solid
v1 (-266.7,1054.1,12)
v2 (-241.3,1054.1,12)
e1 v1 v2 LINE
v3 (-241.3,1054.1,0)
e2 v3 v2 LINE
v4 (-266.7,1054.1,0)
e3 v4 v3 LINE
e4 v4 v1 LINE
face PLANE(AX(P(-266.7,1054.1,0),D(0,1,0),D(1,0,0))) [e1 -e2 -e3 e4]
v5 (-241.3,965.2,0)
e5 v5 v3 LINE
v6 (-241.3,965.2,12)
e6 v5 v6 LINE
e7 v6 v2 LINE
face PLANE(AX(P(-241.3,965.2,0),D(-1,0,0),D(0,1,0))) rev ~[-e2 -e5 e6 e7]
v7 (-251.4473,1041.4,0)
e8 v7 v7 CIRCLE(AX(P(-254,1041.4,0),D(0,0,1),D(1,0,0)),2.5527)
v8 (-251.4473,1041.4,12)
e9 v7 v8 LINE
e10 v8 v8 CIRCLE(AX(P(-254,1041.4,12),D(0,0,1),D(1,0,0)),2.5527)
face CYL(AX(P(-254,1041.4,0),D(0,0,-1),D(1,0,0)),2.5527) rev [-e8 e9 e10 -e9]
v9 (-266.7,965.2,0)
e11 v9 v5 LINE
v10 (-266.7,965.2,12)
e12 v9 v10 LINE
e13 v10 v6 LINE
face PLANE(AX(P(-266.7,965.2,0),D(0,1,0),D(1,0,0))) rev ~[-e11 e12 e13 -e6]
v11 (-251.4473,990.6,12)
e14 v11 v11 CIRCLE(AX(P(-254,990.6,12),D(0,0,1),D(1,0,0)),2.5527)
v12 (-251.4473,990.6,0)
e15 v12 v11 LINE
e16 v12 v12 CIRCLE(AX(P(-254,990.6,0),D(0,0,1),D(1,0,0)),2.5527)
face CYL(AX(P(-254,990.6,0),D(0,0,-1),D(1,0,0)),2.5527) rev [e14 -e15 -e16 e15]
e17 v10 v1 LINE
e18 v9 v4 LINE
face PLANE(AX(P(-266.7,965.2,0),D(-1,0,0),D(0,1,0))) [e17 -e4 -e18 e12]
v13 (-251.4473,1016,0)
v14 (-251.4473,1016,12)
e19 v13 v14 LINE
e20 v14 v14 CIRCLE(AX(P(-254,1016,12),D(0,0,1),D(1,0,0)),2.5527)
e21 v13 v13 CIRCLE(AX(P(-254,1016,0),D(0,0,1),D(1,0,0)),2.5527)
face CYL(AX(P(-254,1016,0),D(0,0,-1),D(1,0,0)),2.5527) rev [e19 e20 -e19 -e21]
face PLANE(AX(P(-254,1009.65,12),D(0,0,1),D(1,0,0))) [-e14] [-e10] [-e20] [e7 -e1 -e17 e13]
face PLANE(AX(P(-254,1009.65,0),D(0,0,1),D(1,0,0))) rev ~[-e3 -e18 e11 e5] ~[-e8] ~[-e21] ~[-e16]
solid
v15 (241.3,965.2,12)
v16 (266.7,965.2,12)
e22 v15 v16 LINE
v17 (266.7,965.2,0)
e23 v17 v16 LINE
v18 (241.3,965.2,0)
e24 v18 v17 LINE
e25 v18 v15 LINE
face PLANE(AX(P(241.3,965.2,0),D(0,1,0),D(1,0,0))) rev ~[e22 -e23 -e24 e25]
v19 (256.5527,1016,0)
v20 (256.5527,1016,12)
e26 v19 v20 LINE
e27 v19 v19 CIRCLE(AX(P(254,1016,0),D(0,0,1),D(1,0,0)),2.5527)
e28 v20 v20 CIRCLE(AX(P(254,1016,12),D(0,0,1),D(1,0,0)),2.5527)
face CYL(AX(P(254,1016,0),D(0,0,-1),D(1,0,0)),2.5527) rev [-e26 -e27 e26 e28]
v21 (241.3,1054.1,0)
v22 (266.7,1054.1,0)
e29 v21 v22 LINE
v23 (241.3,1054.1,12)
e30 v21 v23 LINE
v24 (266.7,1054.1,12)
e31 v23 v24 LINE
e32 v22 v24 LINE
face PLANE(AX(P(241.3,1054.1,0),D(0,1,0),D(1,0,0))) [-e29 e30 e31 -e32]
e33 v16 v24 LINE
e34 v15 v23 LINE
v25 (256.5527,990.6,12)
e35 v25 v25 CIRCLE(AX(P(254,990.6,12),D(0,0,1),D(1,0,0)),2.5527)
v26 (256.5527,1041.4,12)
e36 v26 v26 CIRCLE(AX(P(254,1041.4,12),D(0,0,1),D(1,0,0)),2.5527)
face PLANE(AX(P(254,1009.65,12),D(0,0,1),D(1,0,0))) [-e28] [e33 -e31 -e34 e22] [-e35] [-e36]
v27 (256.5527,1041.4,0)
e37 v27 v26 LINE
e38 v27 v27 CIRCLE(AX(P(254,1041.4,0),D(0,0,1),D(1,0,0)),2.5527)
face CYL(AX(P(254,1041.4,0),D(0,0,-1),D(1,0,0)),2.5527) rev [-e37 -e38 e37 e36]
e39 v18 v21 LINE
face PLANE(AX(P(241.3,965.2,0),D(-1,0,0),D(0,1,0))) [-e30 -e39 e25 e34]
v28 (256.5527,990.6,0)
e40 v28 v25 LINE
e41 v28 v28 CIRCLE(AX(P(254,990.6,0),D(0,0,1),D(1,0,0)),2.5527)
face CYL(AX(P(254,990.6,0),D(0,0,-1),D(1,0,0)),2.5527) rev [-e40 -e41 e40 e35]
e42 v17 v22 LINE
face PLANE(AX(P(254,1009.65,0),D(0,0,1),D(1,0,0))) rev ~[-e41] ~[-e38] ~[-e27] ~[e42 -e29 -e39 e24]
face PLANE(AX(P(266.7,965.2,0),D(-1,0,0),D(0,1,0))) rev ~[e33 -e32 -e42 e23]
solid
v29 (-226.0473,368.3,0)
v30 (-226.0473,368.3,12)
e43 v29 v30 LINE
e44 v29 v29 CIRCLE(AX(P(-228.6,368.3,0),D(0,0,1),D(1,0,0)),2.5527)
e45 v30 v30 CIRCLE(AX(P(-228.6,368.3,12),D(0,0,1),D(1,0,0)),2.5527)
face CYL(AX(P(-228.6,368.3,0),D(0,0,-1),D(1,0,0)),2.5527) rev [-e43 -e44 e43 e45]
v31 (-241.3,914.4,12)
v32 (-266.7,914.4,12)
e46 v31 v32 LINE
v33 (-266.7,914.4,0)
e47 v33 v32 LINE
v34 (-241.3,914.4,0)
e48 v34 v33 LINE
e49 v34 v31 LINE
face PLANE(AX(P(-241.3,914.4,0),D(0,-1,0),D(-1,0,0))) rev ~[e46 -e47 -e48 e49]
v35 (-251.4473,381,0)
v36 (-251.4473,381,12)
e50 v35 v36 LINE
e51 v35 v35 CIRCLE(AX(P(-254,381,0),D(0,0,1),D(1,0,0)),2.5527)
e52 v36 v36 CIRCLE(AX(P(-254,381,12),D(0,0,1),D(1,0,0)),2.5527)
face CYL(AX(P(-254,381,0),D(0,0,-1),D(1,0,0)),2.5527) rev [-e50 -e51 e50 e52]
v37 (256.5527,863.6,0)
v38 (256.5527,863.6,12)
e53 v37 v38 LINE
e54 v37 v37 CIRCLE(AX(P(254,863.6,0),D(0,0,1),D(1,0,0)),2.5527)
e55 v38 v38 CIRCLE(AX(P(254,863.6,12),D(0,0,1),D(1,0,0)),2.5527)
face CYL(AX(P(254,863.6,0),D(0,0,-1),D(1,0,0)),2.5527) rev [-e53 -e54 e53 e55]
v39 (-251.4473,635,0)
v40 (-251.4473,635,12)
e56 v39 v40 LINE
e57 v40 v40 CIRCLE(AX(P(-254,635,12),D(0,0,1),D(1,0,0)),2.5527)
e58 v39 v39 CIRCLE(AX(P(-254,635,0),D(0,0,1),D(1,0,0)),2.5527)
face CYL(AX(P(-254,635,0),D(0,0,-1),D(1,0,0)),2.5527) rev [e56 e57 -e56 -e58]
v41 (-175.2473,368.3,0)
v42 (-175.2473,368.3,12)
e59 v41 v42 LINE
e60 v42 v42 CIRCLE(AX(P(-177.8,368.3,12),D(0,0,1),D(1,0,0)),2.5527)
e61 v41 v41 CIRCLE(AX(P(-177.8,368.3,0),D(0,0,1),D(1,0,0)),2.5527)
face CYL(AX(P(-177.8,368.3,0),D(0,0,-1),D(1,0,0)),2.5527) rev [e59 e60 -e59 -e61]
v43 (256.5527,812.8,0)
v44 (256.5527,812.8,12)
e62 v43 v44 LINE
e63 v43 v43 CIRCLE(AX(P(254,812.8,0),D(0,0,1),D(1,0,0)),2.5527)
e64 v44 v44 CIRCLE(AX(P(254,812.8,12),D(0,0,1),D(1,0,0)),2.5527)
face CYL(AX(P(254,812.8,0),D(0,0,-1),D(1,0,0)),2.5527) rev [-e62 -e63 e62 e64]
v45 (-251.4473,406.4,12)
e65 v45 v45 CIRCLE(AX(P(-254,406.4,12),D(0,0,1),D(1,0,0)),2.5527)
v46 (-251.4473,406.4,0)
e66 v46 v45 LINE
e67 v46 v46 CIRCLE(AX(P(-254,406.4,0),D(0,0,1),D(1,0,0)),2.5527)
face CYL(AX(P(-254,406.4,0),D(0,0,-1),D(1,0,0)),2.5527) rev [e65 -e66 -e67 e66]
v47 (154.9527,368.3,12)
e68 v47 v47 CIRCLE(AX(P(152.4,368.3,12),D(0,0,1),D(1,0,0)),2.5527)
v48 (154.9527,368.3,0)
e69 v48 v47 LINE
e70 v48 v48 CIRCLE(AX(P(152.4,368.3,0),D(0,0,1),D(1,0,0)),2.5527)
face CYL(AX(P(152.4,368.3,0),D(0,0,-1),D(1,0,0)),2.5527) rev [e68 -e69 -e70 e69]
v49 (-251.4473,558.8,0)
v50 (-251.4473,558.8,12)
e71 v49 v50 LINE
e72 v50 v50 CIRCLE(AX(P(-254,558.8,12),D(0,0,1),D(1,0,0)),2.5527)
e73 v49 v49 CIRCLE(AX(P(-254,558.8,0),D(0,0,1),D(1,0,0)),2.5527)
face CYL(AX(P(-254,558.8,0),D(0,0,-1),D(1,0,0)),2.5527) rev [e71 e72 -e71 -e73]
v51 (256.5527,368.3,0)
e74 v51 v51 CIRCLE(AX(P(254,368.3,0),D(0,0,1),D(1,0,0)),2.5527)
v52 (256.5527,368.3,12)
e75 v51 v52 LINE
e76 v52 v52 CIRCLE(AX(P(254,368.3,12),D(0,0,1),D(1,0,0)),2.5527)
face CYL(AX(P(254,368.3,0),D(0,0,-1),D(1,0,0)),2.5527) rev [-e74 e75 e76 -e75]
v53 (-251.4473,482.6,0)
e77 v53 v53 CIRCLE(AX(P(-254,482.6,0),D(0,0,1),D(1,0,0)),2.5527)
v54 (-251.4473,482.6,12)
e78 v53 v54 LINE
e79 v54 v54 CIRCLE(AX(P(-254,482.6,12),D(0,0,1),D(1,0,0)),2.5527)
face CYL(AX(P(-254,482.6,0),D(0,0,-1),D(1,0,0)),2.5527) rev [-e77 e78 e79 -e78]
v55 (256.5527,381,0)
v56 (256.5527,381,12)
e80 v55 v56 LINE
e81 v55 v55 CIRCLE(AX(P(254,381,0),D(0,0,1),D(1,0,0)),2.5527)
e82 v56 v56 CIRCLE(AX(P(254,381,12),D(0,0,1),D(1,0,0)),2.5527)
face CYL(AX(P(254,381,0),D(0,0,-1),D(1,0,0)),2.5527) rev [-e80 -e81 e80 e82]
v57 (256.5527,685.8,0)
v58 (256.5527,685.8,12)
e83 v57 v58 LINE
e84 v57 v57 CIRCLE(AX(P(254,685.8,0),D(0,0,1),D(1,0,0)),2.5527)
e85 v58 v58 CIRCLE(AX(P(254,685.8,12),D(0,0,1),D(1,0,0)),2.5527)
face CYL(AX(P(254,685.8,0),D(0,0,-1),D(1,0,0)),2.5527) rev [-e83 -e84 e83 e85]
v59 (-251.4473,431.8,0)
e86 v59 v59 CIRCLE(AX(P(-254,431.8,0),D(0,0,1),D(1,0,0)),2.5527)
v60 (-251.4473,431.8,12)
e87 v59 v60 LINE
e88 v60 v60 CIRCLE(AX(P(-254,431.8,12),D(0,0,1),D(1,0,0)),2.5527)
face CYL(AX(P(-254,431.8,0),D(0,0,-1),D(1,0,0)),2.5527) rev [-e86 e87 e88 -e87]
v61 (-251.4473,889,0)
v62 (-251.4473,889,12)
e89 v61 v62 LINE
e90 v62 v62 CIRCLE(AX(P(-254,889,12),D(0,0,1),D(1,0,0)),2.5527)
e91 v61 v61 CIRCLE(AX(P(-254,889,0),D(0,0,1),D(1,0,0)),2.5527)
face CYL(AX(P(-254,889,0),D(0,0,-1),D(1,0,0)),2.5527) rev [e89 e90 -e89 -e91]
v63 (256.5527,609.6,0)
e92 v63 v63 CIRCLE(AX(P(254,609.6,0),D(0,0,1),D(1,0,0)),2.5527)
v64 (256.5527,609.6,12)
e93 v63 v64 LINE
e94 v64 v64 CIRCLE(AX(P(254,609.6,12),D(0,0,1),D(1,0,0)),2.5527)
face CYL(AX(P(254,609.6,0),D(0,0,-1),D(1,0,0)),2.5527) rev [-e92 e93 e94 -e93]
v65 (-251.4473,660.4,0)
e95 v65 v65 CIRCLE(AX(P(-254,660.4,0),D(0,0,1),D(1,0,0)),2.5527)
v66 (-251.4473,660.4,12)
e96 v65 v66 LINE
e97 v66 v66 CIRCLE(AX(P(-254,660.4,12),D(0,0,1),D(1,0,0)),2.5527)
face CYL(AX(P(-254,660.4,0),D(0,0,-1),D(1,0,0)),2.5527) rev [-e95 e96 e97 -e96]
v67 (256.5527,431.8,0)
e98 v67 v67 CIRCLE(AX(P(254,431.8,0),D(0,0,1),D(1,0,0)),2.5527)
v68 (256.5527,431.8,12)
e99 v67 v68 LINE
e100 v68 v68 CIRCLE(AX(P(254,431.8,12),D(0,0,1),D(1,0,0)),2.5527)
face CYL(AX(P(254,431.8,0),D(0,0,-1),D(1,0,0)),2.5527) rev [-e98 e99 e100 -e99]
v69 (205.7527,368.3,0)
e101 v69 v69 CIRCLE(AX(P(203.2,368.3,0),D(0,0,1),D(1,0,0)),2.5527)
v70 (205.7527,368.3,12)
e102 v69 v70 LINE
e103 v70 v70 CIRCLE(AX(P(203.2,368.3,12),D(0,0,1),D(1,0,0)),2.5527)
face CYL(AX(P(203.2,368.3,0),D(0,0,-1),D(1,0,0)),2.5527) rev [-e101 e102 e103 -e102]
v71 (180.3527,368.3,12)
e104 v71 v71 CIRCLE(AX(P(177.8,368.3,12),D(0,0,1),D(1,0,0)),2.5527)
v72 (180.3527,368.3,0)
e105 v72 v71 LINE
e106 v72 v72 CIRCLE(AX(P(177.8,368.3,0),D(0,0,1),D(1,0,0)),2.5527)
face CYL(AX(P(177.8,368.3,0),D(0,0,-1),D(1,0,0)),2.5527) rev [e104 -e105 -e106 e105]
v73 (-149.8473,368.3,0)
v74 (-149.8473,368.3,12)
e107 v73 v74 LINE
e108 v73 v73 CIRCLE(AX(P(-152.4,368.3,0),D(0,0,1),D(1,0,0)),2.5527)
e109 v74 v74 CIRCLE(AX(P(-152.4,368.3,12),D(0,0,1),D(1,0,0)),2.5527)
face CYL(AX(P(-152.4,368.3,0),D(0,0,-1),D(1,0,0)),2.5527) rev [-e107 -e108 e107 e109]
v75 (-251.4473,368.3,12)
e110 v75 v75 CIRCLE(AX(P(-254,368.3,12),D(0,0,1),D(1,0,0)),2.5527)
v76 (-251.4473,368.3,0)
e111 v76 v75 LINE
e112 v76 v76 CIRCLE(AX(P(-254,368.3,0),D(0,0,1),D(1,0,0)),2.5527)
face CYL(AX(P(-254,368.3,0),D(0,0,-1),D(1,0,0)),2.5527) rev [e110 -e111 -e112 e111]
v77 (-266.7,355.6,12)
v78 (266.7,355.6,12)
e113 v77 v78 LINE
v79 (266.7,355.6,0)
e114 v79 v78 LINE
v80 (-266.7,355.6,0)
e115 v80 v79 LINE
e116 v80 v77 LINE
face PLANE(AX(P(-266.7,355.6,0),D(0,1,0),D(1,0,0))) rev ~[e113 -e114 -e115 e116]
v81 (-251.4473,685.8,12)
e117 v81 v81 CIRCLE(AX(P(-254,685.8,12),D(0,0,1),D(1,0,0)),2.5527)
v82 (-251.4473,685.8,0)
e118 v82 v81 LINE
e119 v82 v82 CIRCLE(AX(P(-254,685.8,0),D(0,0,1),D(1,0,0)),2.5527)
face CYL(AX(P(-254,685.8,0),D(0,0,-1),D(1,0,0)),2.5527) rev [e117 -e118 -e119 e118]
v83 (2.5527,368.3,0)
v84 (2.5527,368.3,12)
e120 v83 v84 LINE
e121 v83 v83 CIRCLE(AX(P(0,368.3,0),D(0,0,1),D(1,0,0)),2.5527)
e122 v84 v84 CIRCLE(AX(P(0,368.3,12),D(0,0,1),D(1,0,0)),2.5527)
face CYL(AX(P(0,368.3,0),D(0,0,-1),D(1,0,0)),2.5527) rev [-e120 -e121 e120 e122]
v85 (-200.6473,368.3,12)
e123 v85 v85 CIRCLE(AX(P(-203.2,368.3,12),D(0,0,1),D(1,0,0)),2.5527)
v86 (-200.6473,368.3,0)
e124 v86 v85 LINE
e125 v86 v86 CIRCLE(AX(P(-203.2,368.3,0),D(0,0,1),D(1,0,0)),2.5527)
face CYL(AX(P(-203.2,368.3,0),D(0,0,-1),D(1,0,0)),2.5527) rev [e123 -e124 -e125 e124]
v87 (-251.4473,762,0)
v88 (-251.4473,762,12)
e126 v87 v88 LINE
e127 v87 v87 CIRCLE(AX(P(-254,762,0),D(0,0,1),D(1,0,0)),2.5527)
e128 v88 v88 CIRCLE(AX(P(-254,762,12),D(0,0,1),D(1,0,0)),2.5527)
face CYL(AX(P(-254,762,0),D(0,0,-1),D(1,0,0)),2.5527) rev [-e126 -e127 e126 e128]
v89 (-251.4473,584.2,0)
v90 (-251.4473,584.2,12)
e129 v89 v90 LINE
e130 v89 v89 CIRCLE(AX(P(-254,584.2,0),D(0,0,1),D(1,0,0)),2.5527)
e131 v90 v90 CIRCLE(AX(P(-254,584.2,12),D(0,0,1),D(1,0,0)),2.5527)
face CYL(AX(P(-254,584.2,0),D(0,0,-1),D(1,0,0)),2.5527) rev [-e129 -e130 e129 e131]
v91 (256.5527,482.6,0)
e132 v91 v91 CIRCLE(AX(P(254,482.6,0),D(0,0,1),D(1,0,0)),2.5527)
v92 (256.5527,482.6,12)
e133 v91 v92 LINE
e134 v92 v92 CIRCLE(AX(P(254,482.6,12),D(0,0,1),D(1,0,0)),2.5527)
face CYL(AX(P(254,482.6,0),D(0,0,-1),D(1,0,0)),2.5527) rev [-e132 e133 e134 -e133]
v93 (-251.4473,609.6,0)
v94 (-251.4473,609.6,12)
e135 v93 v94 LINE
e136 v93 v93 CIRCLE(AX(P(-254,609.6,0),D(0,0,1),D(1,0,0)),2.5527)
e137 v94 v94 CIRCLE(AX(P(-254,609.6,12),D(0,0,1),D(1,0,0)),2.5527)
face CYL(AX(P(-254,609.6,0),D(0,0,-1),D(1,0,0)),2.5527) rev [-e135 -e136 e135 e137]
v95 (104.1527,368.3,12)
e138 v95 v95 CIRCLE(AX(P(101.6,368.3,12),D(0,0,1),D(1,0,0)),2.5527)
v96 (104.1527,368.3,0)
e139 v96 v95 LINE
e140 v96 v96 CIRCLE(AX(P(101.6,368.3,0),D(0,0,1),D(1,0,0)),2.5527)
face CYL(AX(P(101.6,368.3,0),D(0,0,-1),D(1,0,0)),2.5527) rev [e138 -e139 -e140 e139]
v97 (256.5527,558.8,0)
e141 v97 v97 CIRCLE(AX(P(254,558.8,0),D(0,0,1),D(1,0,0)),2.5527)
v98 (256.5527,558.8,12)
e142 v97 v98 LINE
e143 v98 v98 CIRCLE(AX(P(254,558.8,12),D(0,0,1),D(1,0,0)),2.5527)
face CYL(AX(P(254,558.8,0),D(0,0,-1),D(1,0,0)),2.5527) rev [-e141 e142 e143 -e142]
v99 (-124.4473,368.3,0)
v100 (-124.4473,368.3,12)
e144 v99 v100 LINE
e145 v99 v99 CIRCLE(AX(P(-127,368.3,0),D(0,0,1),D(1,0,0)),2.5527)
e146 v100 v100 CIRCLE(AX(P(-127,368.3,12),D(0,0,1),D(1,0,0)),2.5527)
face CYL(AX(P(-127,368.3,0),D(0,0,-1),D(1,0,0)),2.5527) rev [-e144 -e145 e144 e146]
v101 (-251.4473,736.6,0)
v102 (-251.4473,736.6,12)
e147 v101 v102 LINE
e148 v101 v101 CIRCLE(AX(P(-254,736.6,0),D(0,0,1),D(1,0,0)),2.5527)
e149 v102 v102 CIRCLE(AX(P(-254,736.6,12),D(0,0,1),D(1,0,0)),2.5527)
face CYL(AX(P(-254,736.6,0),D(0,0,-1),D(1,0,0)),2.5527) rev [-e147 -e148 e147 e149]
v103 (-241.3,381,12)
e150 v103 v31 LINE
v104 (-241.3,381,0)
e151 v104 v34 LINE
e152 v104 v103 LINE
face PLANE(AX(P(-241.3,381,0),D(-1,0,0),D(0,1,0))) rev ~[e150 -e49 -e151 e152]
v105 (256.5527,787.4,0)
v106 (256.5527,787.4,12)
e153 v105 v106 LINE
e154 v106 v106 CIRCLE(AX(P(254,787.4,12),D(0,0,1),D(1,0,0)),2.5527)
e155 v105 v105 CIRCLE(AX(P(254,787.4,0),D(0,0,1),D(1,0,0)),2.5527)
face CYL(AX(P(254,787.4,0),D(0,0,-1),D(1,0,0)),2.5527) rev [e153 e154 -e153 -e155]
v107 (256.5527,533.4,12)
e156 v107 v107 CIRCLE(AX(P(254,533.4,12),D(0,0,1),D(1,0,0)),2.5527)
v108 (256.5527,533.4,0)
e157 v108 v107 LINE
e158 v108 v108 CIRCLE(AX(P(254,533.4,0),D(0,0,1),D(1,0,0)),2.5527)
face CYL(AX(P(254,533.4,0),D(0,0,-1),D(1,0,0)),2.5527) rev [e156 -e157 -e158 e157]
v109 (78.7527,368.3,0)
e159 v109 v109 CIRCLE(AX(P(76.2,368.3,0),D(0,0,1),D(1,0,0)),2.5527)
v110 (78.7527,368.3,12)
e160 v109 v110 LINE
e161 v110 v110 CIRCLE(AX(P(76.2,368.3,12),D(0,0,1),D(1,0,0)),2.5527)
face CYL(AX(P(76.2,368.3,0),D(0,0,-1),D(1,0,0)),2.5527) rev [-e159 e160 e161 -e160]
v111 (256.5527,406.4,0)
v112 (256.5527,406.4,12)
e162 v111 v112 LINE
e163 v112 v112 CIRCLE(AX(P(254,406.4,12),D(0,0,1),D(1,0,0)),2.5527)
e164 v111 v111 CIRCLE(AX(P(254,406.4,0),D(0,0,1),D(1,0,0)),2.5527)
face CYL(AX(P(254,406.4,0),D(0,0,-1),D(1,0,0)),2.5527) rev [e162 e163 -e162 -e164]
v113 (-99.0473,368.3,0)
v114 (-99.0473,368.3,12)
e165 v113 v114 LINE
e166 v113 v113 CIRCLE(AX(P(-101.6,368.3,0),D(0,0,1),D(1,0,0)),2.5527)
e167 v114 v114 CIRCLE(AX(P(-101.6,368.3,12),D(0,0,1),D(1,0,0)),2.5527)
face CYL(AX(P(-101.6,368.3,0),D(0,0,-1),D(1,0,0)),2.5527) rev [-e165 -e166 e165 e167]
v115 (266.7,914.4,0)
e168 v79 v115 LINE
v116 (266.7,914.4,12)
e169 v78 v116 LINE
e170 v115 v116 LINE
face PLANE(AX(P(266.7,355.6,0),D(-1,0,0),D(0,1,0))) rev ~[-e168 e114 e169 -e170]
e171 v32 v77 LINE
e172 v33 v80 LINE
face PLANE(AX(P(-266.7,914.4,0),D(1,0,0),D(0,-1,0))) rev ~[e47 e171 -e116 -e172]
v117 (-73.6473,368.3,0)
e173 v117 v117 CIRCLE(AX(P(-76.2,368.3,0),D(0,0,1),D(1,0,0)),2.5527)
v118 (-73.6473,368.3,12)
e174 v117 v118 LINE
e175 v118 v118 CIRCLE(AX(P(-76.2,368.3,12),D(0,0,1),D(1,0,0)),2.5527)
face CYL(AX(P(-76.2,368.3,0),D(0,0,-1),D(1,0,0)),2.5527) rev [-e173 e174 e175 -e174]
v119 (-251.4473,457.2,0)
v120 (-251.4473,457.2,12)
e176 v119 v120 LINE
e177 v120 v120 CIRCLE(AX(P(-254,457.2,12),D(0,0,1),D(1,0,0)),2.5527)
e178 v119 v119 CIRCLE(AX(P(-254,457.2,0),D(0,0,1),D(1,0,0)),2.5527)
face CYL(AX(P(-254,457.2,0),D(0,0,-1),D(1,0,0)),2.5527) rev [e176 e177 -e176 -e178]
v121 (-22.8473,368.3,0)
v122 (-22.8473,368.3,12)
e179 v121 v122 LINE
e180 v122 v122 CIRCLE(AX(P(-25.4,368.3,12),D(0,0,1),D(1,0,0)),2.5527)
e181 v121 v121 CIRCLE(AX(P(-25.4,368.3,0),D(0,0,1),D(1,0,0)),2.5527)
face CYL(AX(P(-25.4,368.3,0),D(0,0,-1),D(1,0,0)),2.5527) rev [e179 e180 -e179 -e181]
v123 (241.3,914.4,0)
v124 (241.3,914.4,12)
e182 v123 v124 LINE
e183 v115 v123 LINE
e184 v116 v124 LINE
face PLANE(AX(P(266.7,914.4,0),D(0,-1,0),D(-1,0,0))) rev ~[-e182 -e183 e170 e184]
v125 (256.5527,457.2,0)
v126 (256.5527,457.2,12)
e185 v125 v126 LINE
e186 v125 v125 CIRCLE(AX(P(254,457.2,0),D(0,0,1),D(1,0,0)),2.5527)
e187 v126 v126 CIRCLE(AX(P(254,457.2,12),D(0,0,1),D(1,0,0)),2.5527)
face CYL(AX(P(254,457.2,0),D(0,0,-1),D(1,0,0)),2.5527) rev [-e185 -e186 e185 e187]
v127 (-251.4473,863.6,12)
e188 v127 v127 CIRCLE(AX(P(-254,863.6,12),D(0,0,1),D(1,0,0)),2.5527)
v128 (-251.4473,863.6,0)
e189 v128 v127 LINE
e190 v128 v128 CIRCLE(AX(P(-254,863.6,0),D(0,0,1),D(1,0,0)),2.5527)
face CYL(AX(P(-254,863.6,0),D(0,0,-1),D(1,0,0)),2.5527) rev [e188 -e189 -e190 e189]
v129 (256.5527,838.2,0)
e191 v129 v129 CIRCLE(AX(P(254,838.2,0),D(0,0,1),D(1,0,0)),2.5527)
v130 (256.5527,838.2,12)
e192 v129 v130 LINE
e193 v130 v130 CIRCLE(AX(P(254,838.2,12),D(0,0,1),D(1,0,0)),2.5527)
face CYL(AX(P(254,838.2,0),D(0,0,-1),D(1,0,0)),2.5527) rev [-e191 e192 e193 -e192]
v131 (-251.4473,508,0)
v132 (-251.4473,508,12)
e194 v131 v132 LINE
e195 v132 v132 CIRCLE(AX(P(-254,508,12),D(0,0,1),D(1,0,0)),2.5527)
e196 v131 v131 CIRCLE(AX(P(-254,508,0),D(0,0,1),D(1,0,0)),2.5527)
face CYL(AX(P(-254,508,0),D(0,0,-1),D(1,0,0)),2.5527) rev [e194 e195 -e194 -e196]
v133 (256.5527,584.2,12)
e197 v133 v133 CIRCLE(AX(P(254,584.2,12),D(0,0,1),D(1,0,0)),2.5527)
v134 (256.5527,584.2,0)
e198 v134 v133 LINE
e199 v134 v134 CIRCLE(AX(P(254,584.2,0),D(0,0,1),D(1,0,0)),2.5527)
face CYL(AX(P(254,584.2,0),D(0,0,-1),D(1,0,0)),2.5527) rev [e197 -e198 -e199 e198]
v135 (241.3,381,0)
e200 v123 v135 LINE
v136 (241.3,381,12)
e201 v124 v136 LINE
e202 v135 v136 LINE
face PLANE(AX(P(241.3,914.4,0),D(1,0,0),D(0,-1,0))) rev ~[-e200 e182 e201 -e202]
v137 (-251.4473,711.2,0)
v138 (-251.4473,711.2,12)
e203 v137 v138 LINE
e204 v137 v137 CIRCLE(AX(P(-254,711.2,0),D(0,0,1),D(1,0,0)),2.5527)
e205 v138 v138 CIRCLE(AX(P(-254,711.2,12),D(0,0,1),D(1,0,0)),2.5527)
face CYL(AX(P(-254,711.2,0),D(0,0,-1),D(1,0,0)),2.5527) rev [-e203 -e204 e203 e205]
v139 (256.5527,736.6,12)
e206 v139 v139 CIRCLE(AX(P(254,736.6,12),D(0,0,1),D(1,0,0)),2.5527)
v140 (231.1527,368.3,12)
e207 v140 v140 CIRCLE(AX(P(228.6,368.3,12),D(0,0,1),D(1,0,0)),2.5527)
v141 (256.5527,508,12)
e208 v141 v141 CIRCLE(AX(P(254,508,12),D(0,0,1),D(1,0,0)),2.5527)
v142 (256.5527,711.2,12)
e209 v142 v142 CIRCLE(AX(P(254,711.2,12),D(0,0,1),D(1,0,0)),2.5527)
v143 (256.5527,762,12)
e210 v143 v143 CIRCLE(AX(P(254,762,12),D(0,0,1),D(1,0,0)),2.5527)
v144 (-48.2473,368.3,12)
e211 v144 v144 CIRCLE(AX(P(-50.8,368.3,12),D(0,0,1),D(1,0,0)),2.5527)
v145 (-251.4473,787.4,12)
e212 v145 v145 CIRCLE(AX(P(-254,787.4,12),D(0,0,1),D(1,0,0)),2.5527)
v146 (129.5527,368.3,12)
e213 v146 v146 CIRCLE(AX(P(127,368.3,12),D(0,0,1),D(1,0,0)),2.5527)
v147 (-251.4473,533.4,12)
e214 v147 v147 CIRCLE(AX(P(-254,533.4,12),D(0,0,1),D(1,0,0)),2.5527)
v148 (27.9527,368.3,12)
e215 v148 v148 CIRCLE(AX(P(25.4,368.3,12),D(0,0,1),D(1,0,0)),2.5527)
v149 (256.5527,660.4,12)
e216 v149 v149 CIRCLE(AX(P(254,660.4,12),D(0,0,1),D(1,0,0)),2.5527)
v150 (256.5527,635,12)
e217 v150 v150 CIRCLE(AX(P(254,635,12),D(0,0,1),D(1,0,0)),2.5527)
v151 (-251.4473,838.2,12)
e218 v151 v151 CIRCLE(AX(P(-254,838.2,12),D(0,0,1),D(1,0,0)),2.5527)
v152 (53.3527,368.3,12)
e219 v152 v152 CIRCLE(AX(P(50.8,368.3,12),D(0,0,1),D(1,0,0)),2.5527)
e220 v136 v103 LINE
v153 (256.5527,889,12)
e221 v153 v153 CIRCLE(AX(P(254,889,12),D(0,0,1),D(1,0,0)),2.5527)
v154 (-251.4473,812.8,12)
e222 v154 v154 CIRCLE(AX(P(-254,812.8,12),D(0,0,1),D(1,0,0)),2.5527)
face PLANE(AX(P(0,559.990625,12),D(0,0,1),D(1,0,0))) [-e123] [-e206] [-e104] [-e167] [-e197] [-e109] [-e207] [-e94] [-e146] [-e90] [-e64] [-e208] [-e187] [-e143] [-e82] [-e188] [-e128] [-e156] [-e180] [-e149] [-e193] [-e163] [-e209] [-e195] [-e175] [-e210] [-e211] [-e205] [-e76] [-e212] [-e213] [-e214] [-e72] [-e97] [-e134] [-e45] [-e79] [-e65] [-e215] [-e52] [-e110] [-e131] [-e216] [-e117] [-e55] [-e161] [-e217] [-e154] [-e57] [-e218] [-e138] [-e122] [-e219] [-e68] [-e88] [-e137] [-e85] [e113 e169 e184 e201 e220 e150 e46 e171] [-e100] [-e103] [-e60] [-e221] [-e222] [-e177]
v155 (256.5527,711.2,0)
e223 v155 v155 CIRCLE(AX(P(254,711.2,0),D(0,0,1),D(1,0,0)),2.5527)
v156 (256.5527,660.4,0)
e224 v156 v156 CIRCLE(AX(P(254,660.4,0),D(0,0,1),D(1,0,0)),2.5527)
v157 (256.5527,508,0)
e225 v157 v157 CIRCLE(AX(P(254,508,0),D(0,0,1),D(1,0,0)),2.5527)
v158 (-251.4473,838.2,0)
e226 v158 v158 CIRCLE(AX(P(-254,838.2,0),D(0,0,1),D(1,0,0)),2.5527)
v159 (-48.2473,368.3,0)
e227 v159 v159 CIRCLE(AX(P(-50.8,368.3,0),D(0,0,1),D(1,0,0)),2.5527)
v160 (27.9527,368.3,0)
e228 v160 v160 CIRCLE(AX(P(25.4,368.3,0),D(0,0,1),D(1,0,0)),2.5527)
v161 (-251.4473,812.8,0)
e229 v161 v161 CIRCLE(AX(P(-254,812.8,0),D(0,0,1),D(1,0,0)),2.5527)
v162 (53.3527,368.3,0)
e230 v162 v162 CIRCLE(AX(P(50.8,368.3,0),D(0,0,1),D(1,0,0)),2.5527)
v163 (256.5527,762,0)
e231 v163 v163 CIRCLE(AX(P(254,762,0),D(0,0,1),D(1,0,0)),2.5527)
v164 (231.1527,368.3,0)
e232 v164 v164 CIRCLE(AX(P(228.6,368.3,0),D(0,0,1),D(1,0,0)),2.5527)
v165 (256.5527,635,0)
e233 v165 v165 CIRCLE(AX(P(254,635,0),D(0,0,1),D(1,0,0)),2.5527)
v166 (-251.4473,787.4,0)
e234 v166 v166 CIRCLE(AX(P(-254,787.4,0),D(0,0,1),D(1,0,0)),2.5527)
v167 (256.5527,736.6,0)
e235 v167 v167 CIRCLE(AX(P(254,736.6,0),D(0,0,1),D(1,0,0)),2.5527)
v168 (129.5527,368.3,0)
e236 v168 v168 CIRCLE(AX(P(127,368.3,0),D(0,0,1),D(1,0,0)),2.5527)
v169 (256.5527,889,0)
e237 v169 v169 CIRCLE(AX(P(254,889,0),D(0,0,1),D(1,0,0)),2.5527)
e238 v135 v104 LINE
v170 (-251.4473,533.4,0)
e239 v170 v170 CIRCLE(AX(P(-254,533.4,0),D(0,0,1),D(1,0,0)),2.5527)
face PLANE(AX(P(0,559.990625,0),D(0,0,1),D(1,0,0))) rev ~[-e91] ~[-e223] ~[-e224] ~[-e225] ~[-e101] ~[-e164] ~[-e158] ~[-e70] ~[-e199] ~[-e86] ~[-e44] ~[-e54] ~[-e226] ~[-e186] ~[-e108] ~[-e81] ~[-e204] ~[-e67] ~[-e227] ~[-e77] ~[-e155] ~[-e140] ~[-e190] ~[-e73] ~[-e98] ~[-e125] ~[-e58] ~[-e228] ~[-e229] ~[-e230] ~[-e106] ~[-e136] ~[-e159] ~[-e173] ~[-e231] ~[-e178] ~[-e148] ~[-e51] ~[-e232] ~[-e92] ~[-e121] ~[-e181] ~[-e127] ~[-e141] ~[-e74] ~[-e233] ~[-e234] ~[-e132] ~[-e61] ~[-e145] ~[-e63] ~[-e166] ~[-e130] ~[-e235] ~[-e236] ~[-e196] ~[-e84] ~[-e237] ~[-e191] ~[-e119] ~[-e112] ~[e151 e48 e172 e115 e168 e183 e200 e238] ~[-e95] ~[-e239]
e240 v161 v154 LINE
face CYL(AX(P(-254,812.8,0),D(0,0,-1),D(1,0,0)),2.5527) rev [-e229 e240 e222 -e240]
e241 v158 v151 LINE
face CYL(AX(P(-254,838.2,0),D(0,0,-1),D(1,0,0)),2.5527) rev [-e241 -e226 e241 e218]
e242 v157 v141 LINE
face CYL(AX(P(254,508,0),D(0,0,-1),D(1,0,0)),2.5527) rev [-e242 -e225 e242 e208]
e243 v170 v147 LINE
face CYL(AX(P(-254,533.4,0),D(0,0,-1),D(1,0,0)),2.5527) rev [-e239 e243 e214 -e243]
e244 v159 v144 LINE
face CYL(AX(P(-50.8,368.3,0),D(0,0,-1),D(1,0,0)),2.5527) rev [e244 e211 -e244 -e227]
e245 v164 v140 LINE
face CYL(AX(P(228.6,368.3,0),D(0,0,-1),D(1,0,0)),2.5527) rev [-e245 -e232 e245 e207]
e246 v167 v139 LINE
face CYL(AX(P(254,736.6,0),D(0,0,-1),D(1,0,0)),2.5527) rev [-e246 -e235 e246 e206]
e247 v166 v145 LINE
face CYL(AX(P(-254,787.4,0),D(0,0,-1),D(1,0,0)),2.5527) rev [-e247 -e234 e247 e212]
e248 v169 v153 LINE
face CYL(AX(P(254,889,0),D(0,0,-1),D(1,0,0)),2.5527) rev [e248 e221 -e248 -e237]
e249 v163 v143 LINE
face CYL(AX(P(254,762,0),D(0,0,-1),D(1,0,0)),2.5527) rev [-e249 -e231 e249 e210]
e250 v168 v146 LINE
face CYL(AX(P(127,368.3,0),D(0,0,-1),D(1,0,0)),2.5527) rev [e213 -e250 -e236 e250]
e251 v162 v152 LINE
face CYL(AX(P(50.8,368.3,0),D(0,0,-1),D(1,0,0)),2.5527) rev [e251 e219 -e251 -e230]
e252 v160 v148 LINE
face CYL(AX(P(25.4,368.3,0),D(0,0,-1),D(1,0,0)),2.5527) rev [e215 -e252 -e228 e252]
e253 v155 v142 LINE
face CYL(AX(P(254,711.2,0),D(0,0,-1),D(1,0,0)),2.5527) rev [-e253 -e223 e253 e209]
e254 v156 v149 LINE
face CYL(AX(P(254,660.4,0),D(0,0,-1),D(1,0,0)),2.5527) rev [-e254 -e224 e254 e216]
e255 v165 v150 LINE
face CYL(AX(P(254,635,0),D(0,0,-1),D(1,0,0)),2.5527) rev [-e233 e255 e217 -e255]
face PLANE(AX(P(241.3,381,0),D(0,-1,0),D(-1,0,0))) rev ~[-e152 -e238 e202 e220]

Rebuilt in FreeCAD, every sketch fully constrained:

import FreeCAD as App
import Part
import Sketcher
Q = App.Units.Quantity


def add_polygon(sketch, points):
    """Adds a closed chain of lines whose ends are joined by coincident constraints."""
    first, n = sketch.GeometryCount, len(points)
    for a, b in zip(points, points[1:] + points[:1]):
        sketch.addGeometry(Part.LineSegment(App.Vector(*a, 0), App.Vector(*b, 0)), False)
    for i in range(n):
        sketch.addConstraint(Sketcher.Constraint("Coincident", first + i, 2, first + (i + 1) % n, 1))

doc = App.newDocument("Part")
body = doc.addObject("PartDesign::Body", "Body")
body.AllowCompound = True

sketch1 = body.newObject("Sketcher::SketchObject", "Sketch")
sketch1.AttachmentSupport = (doc.getObject("XY_Plane"), [""])
sketch1.MapMode = "FlatFace"
add_polygon(sketch1, [(-266.7, 1054.1), (-266.7, 965.2), (-241.3, 965.2), (-241.3, 1054.1)])
sketch1.addGeometry(Part.Circle(App.Vector(-254, 990.6, 0), App.Vector(0, 0, 1), 2.6), False)
sketch1.addGeometry(Part.Circle(App.Vector(-254, 1016, 0), App.Vector(0, 0, 1), 2.6), False)
sketch1.addGeometry(Part.Circle(App.Vector(-254, 1041.4, 0), App.Vector(0, 0, 1), 2.6), False)
add_polygon(sketch1, [(241.3, 1054.1), (241.3, 965.2), (266.7, 965.2), (266.7, 1054.1)])
sketch1.addGeometry(Part.Circle(App.Vector(254, 990.6, 0), App.Vector(0, 0, 1), 2.6), False)
sketch1.addGeometry(Part.Circle(App.Vector(254, 1016, 0), App.Vector(0, 0, 1), 2.6), False)
sketch1.addGeometry(Part.Circle(App.Vector(254, 1041.4, 0), App.Vector(0, 0, 1), 2.6), False)
add_polygon(sketch1, [(-241.3, 914.4), (-266.7, 914.4), (-266.7, 355.6), (266.7, 355.6), (266.7, 914.4), (241.3, 914.4), (241.3, 381), (-241.3, 381)])
sketch1.addGeometry(Part.Circle(App.Vector(-254, 368.3, 0), App.Vector(0, 0, 1), 2.6), False)
sketch1.addGeometry(Part.Circle(App.Vector(-254, 381, 0), App.Vector(0, 0, 1), 2.6), False)
sketch1.addGeometry(Part.Circle(App.Vector(-228.6, 368.3, 0), App.Vector(0, 0, 1), 2.6), False)
sketch1.addGeometry(Part.Circle(App.Vector(-203.2, 368.3, 0), App.Vector(0, 0, 1), 2.6), False)
sketch1.addGeometry(Part.Circle(App.Vector(-254, 406.4, 0), App.Vector(0, 0, 1), 2.6), False)
sketch1.addGeometry(Part.Circle(App.Vector(-177.8, 368.3, 0), App.Vector(0, 0, 1), 2.6), False)
sketch1.addGeometry(Part.Circle(App.Vector(-152.4, 368.3, 0), App.Vector(0, 0, 1), 2.6), False)
sketch1.addGeometry(Part.Circle(App.Vector(-254, 431.8, 0), App.Vector(0, 0, 1), 2.6), False)
sketch1.addGeometry(Part.Circle(App.Vector(-254, 457.2, 0), App.Vector(0, 0, 1), 2.6), False)
sketch1.addGeometry(Part.Circle(App.Vector(-254, 482.6, 0), App.Vector(0, 0, 1), 2.6), False)
sketch1.addGeometry(Part.Circle(App.Vector(-127, 368.3, 0), App.Vector(0, 0, 1), 2.6), False)
sketch1.addGeometry(Part.Circle(App.Vector(-101.6, 368.3, 0), App.Vector(0, 0, 1), 2.6), False)
sketch1.addGeometry(Part.Circle(App.Vector(-76.2, 368.3, 0), App.Vector(0, 0, 1), 2.6), False)
sketch1.addGeometry(Part.Circle(App.Vector(-50.8, 368.3, 0), App.Vector(0, 0, 1), 2.6), False)
sketch1.addGeometry(Part.Circle(App.Vector(-25.4, 368.3, 0), App.Vector(0, 0, 1), 2.6), False)
sketch1.addGeometry(Part.Circle(App.Vector(-254, 508, 0), App.Vector(0, 0, 1), 2.6), False)
sketch1.addGeometry(Part.Circle(App.Vector(-254, 533.4, 0), App.Vector(0, 0, 1), 2.6), False)
sketch1.addGeometry(Part.Circle(App.Vector(-254, 558.8, 0), App.Vector(0, 0, 1), 2.6), False)
sketch1.addGeometry(Part.Circle(App.Vector(-254, 584.2, 0), App.Vector(0, 0, 1), 2.6), False)
sketch1.addGeometry(Part.Circle(App.Vector(-254, 609.6, 0), App.Vector(0, 0, 1), 2.6), False)
sketch1.addGeometry(Part.Circle(App.Vector(0, 368.3, 0), App.Vector(0, 0, 1), 2.6), False)
sketch1.addGeometry(Part.Circle(App.Vector(25.4, 368.3, 0), App.Vector(0, 0, 1), 2.6), False)
sketch1.addGeometry(Part.Circle(App.Vector(50.8, 368.3, 0), App.Vector(0, 0, 1), 2.6), False)
sketch1.addGeometry(Part.Circle(App.Vector(76.2, 368.3, 0), App.Vector(0, 0, 1), 2.6), False)
sketch1.addGeometry(Part.Circle(App.Vector(101.6, 368.3, 0), App.Vector(0, 0, 1), 2.6), False)
sketch1.addGeometry(Part.Circle(App.Vector(127, 368.3, 0), App.Vector(0, 0, 1), 2.6), False)
sketch1.addGeometry(Part.Circle(App.Vector(152.4, 368.3, 0), App.Vector(0, 0, 1), 2.6), False)
sketch1.addGeometry(Part.Circle(App.Vector(177.8, 368.3, 0), App.Vector(0, 0, 1), 2.6), False)
sketch1.addGeometry(Part.Circle(App.Vector(203.2, 368.3, 0), App.Vector(0, 0, 1), 2.6), False)
sketch1.addGeometry(Part.Circle(App.Vector(228.6, 368.3, 0), App.Vector(0, 0, 1), 2.6), False)
sketch1.addGeometry(Part.Circle(App.Vector(254, 368.3, 0), App.Vector(0, 0, 1), 2.6), False)
sketch1.addGeometry(Part.Circle(App.Vector(254, 381, 0), App.Vector(0, 0, 1), 2.6), False)
sketch1.addGeometry(Part.Circle(App.Vector(254, 406.4, 0), App.Vector(0, 0, 1), 2.6), False)
sketch1.addGeometry(Part.Circle(App.Vector(254, 431.8, 0), App.Vector(0, 0, 1), 2.6), False)
sketch1.addGeometry(Part.Circle(App.Vector(254, 457.2, 0), App.Vector(0, 0, 1), 2.6), False)
sketch1.addGeometry(Part.Circle(App.Vector(254, 482.6, 0), App.Vector(0, 0, 1), 2.6), False)
sketch1.addGeometry(Part.Circle(App.Vector(254, 508, 0), App.Vector(0, 0, 1), 2.6), False)
sketch1.addGeometry(Part.Circle(App.Vector(254, 533.4, 0), App.Vector(0, 0, 1), 2.6), False)
sketch1.addGeometry(Part.Circle(App.Vector(254, 558.8, 0), App.Vector(0, 0, 1), 2.6), False)
sketch1.addGeometry(Part.Circle(App.Vector(254, 584.2, 0), App.Vector(0, 0, 1), 2.6), False)
sketch1.addGeometry(Part.Circle(App.Vector(254, 609.6, 0), App.Vector(0, 0, 1), 2.6), False)
sketch1.addGeometry(Part.Circle(App.Vector(-254, 635, 0), App.Vector(0, 0, 1), 2.6), False)
sketch1.addGeometry(Part.Circle(App.Vector(-254, 660.4, 0), App.Vector(0, 0, 1), 2.6), False)
sketch1.addGeometry(Part.Circle(App.Vector(-254, 685.8, 0), App.Vector(0, 0, 1), 2.6), False)
sketch1.addGeometry(Part.Circle(App.Vector(-254, 711.2, 0), App.Vector(0, 0, 1), 2.6), False)
sketch1.addGeometry(Part.Circle(App.Vector(-254, 736.6, 0), App.Vector(0, 0, 1), 2.6), False)
sketch1.addGeometry(Part.Circle(App.Vector(-254, 762, 0), App.Vector(0, 0, 1), 2.6), False)
sketch1.addGeometry(Part.Circle(App.Vector(-254, 787.4, 0), App.Vector(0, 0, 1), 2.6), False)
sketch1.addGeometry(Part.Circle(App.Vector(-254, 812.8, 0), App.Vector(0, 0, 1), 2.6), False)
sketch1.addGeometry(Part.Circle(App.Vector(-254, 838.2, 0), App.Vector(0, 0, 1), 2.6), False)
sketch1.addGeometry(Part.Circle(App.Vector(-254, 863.6, 0), App.Vector(0, 0, 1), 2.6), False)
sketch1.addGeometry(Part.Circle(App.Vector(-254, 889, 0), App.Vector(0, 0, 1), 2.6), False)
sketch1.addGeometry(Part.Circle(App.Vector(254, 635, 0), App.Vector(0, 0, 1), 2.6), False)
sketch1.addGeometry(Part.Circle(App.Vector(254, 660.4, 0), App.Vector(0, 0, 1), 2.6), False)
sketch1.addGeometry(Part.Circle(App.Vector(254, 685.8, 0), App.Vector(0, 0, 1), 2.6), False)
sketch1.addGeometry(Part.Circle(App.Vector(254, 711.2, 0), App.Vector(0, 0, 1), 2.6), False)
sketch1.addGeometry(Part.Circle(App.Vector(254, 736.6, 0), App.Vector(0, 0, 1), 2.6), False)
sketch1.addGeometry(Part.Circle(App.Vector(254, 762, 0), App.Vector(0, 0, 1), 2.6), False)
sketch1.addGeometry(Part.Circle(App.Vector(254, 787.4, 0), App.Vector(0, 0, 1), 2.6), False)
sketch1.addGeometry(Part.Circle(App.Vector(254, 812.8, 0), App.Vector(0, 0, 1), 2.6), False)
sketch1.addGeometry(Part.Circle(App.Vector(254, 838.2, 0), App.Vector(0, 0, 1), 2.6), False)
sketch1.addGeometry(Part.Circle(App.Vector(254, 863.6, 0), App.Vector(0, 0, 1), 2.6), False)
sketch1.addGeometry(Part.Circle(App.Vector(254, 889, 0), App.Vector(0, 0, 1), 2.6), False)
sketch1.addConstraint(Sketcher.Constraint("Vertical", 0))
sketch1.addConstraint(Sketcher.Constraint("Horizontal", 1))
sketch1.addConstraint(Sketcher.Constraint("Vertical", 2))
sketch1.addConstraint(Sketcher.Constraint("Horizontal", 3))
sketch1.addConstraint(Sketcher.Constraint("Vertical", 7))
sketch1.addConstraint(Sketcher.Constraint("Horizontal", 8))
sketch1.addConstraint(Sketcher.Constraint("Vertical", 9))
sketch1.addConstraint(Sketcher.Constraint("Horizontal", 10))
sketch1.addConstraint(Sketcher.Constraint("Horizontal", 14))
sketch1.addConstraint(Sketcher.Constraint("Vertical", 15))
sketch1.addConstraint(Sketcher.Constraint("Horizontal", 16))
sketch1.addConstraint(Sketcher.Constraint("Vertical", 17))
sketch1.addConstraint(Sketcher.Constraint("Horizontal", 18))
sketch1.addConstraint(Sketcher.Constraint("Vertical", 19))
sketch1.addConstraint(Sketcher.Constraint("Horizontal", 20))
sketch1.addConstraint(Sketcher.Constraint("Vertical", 21))
sketch1.addConstraint(Sketcher.Constraint("Equal", 4, 5))
sketch1.addConstraint(Sketcher.Constraint("Equal", 5, 6))
sketch1.addConstraint(Sketcher.Constraint("Equal", 6, 11))
sketch1.addConstraint(Sketcher.Constraint("Equal", 11, 12))
sketch1.addConstraint(Sketcher.Constraint("Equal", 12, 13))
sketch1.addConstraint(Sketcher.Constraint("Equal", 13, 22))
sketch1.addConstraint(Sketcher.Constraint("Equal", 22, 23))
sketch1.addConstraint(Sketcher.Constraint("Equal", 23, 24))
sketch1.addConstraint(Sketcher.Constraint("Equal", 24, 25))
sketch1.addConstraint(Sketcher.Constraint("Equal", 25, 26))
sketch1.addConstraint(Sketcher.Constraint("Equal", 26, 27))
sketch1.addConstraint(Sketcher.Constraint("Equal", 27, 28))
sketch1.addConstraint(Sketcher.Constraint("Equal", 28, 29))
sketch1.addConstraint(Sketcher.Constraint("Equal", 29, 30))
sketch1.addConstraint(Sketcher.Constraint("Equal", 30, 31))
sketch1.addConstraint(Sketcher.Constraint("Equal", 31, 32))
sketch1.addConstraint(Sketcher.Constraint("Equal", 32, 33))
sketch1.addConstraint(Sketcher.Constraint("Equal", 33, 34))
sketch1.addConstraint(Sketcher.Constraint("Equal", 34, 35))
sketch1.addConstraint(Sketcher.Constraint("Equal", 35, 36))
sketch1.addConstraint(Sketcher.Constraint("Equal", 36, 37))
sketch1.addConstraint(Sketcher.Constraint("Equal", 37, 38))
sketch1.addConstraint(Sketcher.Constraint("Equal", 38, 39))
sketch1.addConstraint(Sketcher.Constraint("Equal", 39, 40))
sketch1.addConstraint(Sketcher.Constraint("Equal", 40, 41))
sketch1.addConstraint(Sketcher.Constraint("Equal", 41, 42))
sketch1.addConstraint(Sketcher.Constraint("Equal", 42, 43))
sketch1.addConstraint(Sketcher.Constraint("Equal", 43, 44))
sketch1.addConstraint(Sketcher.Constraint("Equal", 44, 45))
sketch1.addConstraint(Sketcher.Constraint("Equal", 45, 46))
sketch1.addConstraint(Sketcher.Constraint("Equal", 46, 47))
sketch1.addConstraint(Sketcher.Constraint("Equal", 47, 48))
sketch1.addConstraint(Sketcher.Constraint("Equal", 48, 49))
sketch1.addConstraint(Sketcher.Constraint("Equal", 49, 50))
sketch1.addConstraint(Sketcher.Constraint("Equal", 50, 51))
sketch1.addConstraint(Sketcher.Constraint("Equal", 51, 52))
sketch1.addConstraint(Sketcher.Constraint("Equal", 52, 53))
sketch1.addConstraint(Sketcher.Constraint("Equal", 53, 54))
sketch1.addConstraint(Sketcher.Constraint("Equal", 54, 55))
sketch1.addConstraint(Sketcher.Constraint("Equal", 55, 56))
sketch1.addConstraint(Sketcher.Constraint("Equal", 56, 57))
sketch1.addConstraint(Sketcher.Constraint("Equal", 57, 58))
sketch1.addConstraint(Sketcher.Constraint("Equal", 58, 59))
sketch1.addConstraint(Sketcher.Constraint("Equal", 59, 60))
sketch1.addConstraint(Sketcher.Constraint("Equal", 60, 61))
sketch1.addConstraint(Sketcher.Constraint("Equal", 61, 62))
sketch1.addConstraint(Sketcher.Constraint("Equal", 62, 63))
sketch1.addConstraint(Sketcher.Constraint("Equal", 63, 64))
sketch1.addConstraint(Sketcher.Constraint("Equal", 64, 65))
sketch1.addConstraint(Sketcher.Constraint("Equal", 65, 66))
sketch1.addConstraint(Sketcher.Constraint("Equal", 66, 67))
sketch1.addConstraint(Sketcher.Constraint("Equal", 67, 68))
sketch1.addConstraint(Sketcher.Constraint("Equal", 68, 69))
sketch1.addConstraint(Sketcher.Constraint("Equal", 69, 70))
sketch1.addConstraint(Sketcher.Constraint("Equal", 70, 71))
sketch1.addConstraint(Sketcher.Constraint("Equal", 71, 72))
sketch1.addConstraint(Sketcher.Constraint("Equal", 72, 73))
sketch1.addConstraint(Sketcher.Constraint("Equal", 73, 74))
sketch1.addConstraint(Sketcher.Constraint("Equal", 74, 75))
sketch1.addConstraint(Sketcher.Constraint("Equal", 75, 76))
sketch1.addConstraint(Sketcher.Constraint("Equal", 76, 77))
sketch1.addConstraint(Sketcher.Constraint("Equal", 77, 78))
sketch1.addConstraint(Sketcher.Constraint("Equal", 78, 79))
sketch1.addConstraint(Sketcher.Constraint("Equal", 79, 80))
sketch1.addConstraint(Sketcher.Constraint("Equal", 80, 81))
sketch1.addConstraint(Sketcher.Constraint("Equal", 81, 82))
sketch1.addConstraint(Sketcher.Constraint("Equal", 82, 83))
sketch1.addConstraint(Sketcher.Constraint("Equal", 83, 84))
sketch1.addConstraint(Sketcher.Constraint("Symmetric", 4, 3, 11, 3, -2))
sketch1.addConstraint(Sketcher.Constraint("Symmetric", 5, 3, 12, 3, -2))
sketch1.addConstraint(Sketcher.Constraint("Symmetric", 6, 3, 13, 3, -2))
sketch1.addConstraint(Sketcher.Constraint("Symmetric", 36, 3, 43, 3, -2))
sketch1.addConstraint(Sketcher.Constraint("Symmetric", 35, 3, 44, 3, -2))
sketch1.addConstraint(Sketcher.Constraint("Symmetric", 34, 3, 45, 3, -2))
sketch1.addConstraint(Sketcher.Constraint("Symmetric", 33, 3, 46, 3, -2))
sketch1.addConstraint(Sketcher.Constraint("Symmetric", 32, 3, 47, 3, -2))
sketch1.addConstraint(Sketcher.Constraint("Symmetric", 28, 3, 48, 3, -2))
sketch1.addConstraint(Sketcher.Constraint("Symmetric", 27, 3, 49, 3, -2))
sketch1.addConstraint(Sketcher.Constraint("Symmetric", 25, 3, 50, 3, -2))
sketch1.addConstraint(Sketcher.Constraint("Symmetric", 24, 3, 51, 3, -2))
sketch1.addConstraint(Sketcher.Constraint("Symmetric", 22, 3, 52, 3, -2))
sketch1.addConstraint(Sketcher.Constraint("Symmetric", 23, 3, 53, 3, -2))
sketch1.addConstraint(Sketcher.Constraint("Symmetric", 26, 3, 54, 3, -2))
sketch1.addConstraint(Sketcher.Constraint("Symmetric", 29, 3, 55, 3, -2))
sketch1.addConstraint(Sketcher.Constraint("Symmetric", 30, 3, 56, 3, -2))
sketch1.addConstraint(Sketcher.Constraint("Symmetric", 31, 3, 57, 3, -2))
sketch1.addConstraint(Sketcher.Constraint("Symmetric", 37, 3, 58, 3, -2))
sketch1.addConstraint(Sketcher.Constraint("Symmetric", 38, 3, 59, 3, -2))
sketch1.addConstraint(Sketcher.Constraint("Symmetric", 39, 3, 60, 3, -2))
sketch1.addConstraint(Sketcher.Constraint("Symmetric", 40, 3, 61, 3, -2))
sketch1.addConstraint(Sketcher.Constraint("Symmetric", 41, 3, 62, 3, -2))
sketch1.addConstraint(Sketcher.Constraint("Symmetric", 63, 3, 74, 3, -2))
sketch1.addConstraint(Sketcher.Constraint("Symmetric", 64, 3, 75, 3, -2))
sketch1.addConstraint(Sketcher.Constraint("Symmetric", 65, 3, 76, 3, -2))
sketch1.addConstraint(Sketcher.Constraint("Symmetric", 66, 3, 77, 3, -2))
sketch1.addConstraint(Sketcher.Constraint("Symmetric", 67, 3, 78, 3, -2))
sketch1.addConstraint(Sketcher.Constraint("Symmetric", 68, 3, 79, 3, -2))
sketch1.addConstraint(Sketcher.Constraint("Symmetric", 69, 3, 80, 3, -2))
sketch1.addConstraint(Sketcher.Constraint("Symmetric", 70, 3, 81, 3, -2))
sketch1.addConstraint(Sketcher.Constraint("Symmetric", 71, 3, 82, 3, -2))
sketch1.addConstraint(Sketcher.Constraint("Symmetric", 72, 3, 83, 3, -2))
sketch1.addConstraint(Sketcher.Constraint("Symmetric", 73, 3, 84, 3, -2))
sketch1.addConstraint(Sketcher.Constraint("Symmetric", 1, 2, 7, 2, -2))
sketch1.addConstraint(Sketcher.Constraint("Symmetric", 3, 2, 9, 2, -2))
sketch1.addConstraint(Sketcher.Constraint("Symmetric", 14, 2, 17, 2, -2))
sketch1.addConstraint(Sketcher.Constraint("PointOnObject", 42, 3, -2))
sketch1.addConstraint(Sketcher.Constraint("Horizontal", 22, 3, 24, 3))
sketch1.addConstraint(Sketcher.Constraint("Horizontal", 24, 3, 25, 3))
sketch1.addConstraint(Sketcher.Constraint("Horizontal", 25, 3, 27, 3))
sketch1.addConstraint(Sketcher.Constraint("Horizontal", 27, 3, 28, 3))
sketch1.addConstraint(Sketcher.Constraint("Horizontal", 28, 3, 32, 3))
sketch1.addConstraint(Sketcher.Constraint("Horizontal", 32, 3, 33, 3))
sketch1.addConstraint(Sketcher.Constraint("Horizontal", 33, 3, 34, 3))
sketch1.addConstraint(Sketcher.Constraint("Horizontal", 34, 3, 35, 3))
sketch1.addConstraint(Sketcher.Constraint("Horizontal", 35, 3, 36, 3))
sketch1.addConstraint(Sketcher.Constraint("Horizontal", 36, 3, 42, 3))
sketch1.addConstraint(Sketcher.Constraint("Horizontal", 53, 3, 19, 2))
sketch1.addConstraint(Sketcher.Constraint("Vertical", 4, 3, 5, 3))
sketch1.addConstraint(Sketcher.Constraint("Vertical", 5, 3, 6, 3))
sketch1.addConstraint(Sketcher.Constraint("Vertical", 6, 3, 22, 3))
sketch1.addConstraint(Sketcher.Constraint("Vertical", 22, 3, 23, 3))
sketch1.addConstraint(Sketcher.Constraint("Vertical", 23, 3, 26, 3))
sketch1.addConstraint(Sketcher.Constraint("Vertical", 26, 3, 29, 3))
sketch1.addConstraint(Sketcher.Constraint("Vertical", 29, 3, 30, 3))
sketch1.addConstraint(Sketcher.Constraint("Vertical", 30, 3, 31, 3))
sketch1.addConstraint(Sketcher.Constraint("Vertical", 31, 3, 37, 3))
sketch1.addConstraint(Sketcher.Constraint("Vertical", 37, 3, 38, 3))
sketch1.addConstraint(Sketcher.Constraint("Vertical", 38, 3, 39, 3))
sketch1.addConstraint(Sketcher.Constraint("Vertical", 39, 3, 40, 3))
sketch1.addConstraint(Sketcher.Constraint("Vertical", 40, 3, 41, 3))
sketch1.addConstraint(Sketcher.Constraint("Vertical", 41, 3, 63, 3))
sketch1.addConstraint(Sketcher.Constraint("Vertical", 63, 3, 64, 3))
sketch1.addConstraint(Sketcher.Constraint("Vertical", 64, 3, 65, 3))
sketch1.addConstraint(Sketcher.Constraint("Vertical", 65, 3, 66, 3))
sketch1.addConstraint(Sketcher.Constraint("Vertical", 66, 3, 67, 3))
sketch1.addConstraint(Sketcher.Constraint("Vertical", 67, 3, 68, 3))
sketch1.addConstraint(Sketcher.Constraint("Vertical", 68, 3, 69, 3))
sketch1.addConstraint(Sketcher.Constraint("Vertical", 69, 3, 70, 3))
sketch1.addConstraint(Sketcher.Constraint("Vertical", 70, 3, 71, 3))
sketch1.addConstraint(Sketcher.Constraint("Vertical", 71, 3, 72, 3))
sketch1.addConstraint(Sketcher.Constraint("Vertical", 72, 3, 73, 3))
sketch1.addConstraint(Sketcher.Constraint("Vertical", 3, 2, 14, 2))
sketch1.addConstraint(Sketcher.Constraint("Vertical", 10, 2, 18, 2))
sketch1.addConstraint(Sketcher.Constraint("Vertical", 2, 2, 20, 2))
sketch1.addConstraint(Sketcher.Constraint("Equal", 16, 19))
sketch1.addConstraint(Sketcher.Constraint("DistanceX", 1, 1, 1, 2, Q("1 in")))
sketch1.addConstraint(Sketcher.Constraint("DistanceX", 16, 1, 16, 2, Q("21 in")))
sketch1.addConstraint(Sketcher.Constraint("DistanceY", 15, 2, 15, 1, Q("22 in")))
sketch1.addConstraint(Sketcher.Constraint("Diameter", 4, Q("0.201 in")))
sketch1.addConstraint(Sketcher.Constraint("DistanceY", 0, 2, 0, 1, Q("3.5 in")))
sketch1.addConstraint(Sketcher.Constraint("DistanceX", 4, 3, -1, 1, Q("10 in")))
sketch1.addConstraint(Sketcher.Constraint("DistanceY", -1, 1, 4, 3, Q("39 in")))
sketch1.addConstraint(Sketcher.Constraint("DistanceY", -1, 1, 5, 3, Q("40 in")))
sketch1.addConstraint(Sketcher.Constraint("DistanceY", -1, 1, 6, 3, Q("41 in")))
sketch1.addConstraint(Sketcher.Constraint("DistanceY", -1, 1, 23, 3, Q("15 in")))
sketch1.addConstraint(Sketcher.Constraint("DistanceX", 24, 3, -1, 1, Q("9 in")))
sketch1.addConstraint(Sketcher.Constraint("DistanceX", 25, 3, -1, 1, Q("8 in")))
sketch1.addConstraint(Sketcher.Constraint("DistanceY", -1, 1, 26, 3, Q("16 in")))
sketch1.addConstraint(Sketcher.Constraint("DistanceX", 27, 3, -1, 1, Q("7 in")))
sketch1.addConstraint(Sketcher.Constraint("DistanceX", 28, 3, -1, 1, Q("6 in")))
sketch1.addConstraint(Sketcher.Constraint("DistanceY", -1, 1, 29, 3, Q("17 in")))
sketch1.addConstraint(Sketcher.Constraint("DistanceY", -1, 1, 30, 3, Q("18 in")))
sketch1.addConstraint(Sketcher.Constraint("DistanceY", -1, 1, 31, 3, Q("19 in")))
sketch1.addConstraint(Sketcher.Constraint("DistanceX", 32, 3, -1, 1, Q("5 in")))
sketch1.addConstraint(Sketcher.Constraint("DistanceX", 33, 3, -1, 1, Q("4 in")))
sketch1.addConstraint(Sketcher.Constraint("DistanceX", 34, 3, -1, 1, Q("3 in")))
sketch1.addConstraint(Sketcher.Constraint("DistanceX", 35, 3, -1, 1, Q("2 in")))
sketch1.addConstraint(Sketcher.Constraint("DistanceX", 36, 3, -1, 1, Q("1 in")))
sketch1.addConstraint(Sketcher.Constraint("DistanceY", -1, 1, 37, 3, Q("20 in")))
sketch1.addConstraint(Sketcher.Constraint("DistanceY", -1, 1, 38, 3, Q("21 in")))
sketch1.addConstraint(Sketcher.Constraint("DistanceY", -1, 1, 39, 3, Q("22 in")))
sketch1.addConstraint(Sketcher.Constraint("DistanceY", -1, 1, 40, 3, Q("23 in")))
sketch1.addConstraint(Sketcher.Constraint("DistanceY", -1, 1, 41, 3, Q("24 in")))
sketch1.addConstraint(Sketcher.Constraint("DistanceY", -1, 1, 63, 3, Q("25 in")))
sketch1.addConstraint(Sketcher.Constraint("DistanceY", -1, 1, 64, 3, Q("26 in")))
sketch1.addConstraint(Sketcher.Constraint("DistanceY", -1, 1, 65, 3, Q("27 in")))
sketch1.addConstraint(Sketcher.Constraint("DistanceY", -1, 1, 66, 3, Q("28 in")))
sketch1.addConstraint(Sketcher.Constraint("DistanceY", -1, 1, 67, 3, Q("29 in")))
sketch1.addConstraint(Sketcher.Constraint("DistanceY", -1, 1, 68, 3, Q("30 in")))
sketch1.addConstraint(Sketcher.Constraint("DistanceY", -1, 1, 69, 3, Q("31 in")))
sketch1.addConstraint(Sketcher.Constraint("DistanceY", -1, 1, 70, 3, Q("32 in")))
sketch1.addConstraint(Sketcher.Constraint("DistanceY", -1, 1, 71, 3, Q("33 in")))
sketch1.addConstraint(Sketcher.Constraint("DistanceY", -1, 1, 72, 3, Q("34 in")))
sketch1.addConstraint(Sketcher.Constraint("DistanceY", -1, 1, 73, 3, Q("35 in")))
sketch1.addConstraint(Sketcher.Constraint("DistanceY", -1, 1, 0, 2, Q("38 in")))
sketch1.addConstraint(Sketcher.Constraint("DistanceY", -1, 1, 22, 3, Q("14.5 in")))
pad1 = body.newObject("PartDesign::Pad", "Pad")
pad1.Profile = sketch1
pad1.Length = 12

doc.recompute()
